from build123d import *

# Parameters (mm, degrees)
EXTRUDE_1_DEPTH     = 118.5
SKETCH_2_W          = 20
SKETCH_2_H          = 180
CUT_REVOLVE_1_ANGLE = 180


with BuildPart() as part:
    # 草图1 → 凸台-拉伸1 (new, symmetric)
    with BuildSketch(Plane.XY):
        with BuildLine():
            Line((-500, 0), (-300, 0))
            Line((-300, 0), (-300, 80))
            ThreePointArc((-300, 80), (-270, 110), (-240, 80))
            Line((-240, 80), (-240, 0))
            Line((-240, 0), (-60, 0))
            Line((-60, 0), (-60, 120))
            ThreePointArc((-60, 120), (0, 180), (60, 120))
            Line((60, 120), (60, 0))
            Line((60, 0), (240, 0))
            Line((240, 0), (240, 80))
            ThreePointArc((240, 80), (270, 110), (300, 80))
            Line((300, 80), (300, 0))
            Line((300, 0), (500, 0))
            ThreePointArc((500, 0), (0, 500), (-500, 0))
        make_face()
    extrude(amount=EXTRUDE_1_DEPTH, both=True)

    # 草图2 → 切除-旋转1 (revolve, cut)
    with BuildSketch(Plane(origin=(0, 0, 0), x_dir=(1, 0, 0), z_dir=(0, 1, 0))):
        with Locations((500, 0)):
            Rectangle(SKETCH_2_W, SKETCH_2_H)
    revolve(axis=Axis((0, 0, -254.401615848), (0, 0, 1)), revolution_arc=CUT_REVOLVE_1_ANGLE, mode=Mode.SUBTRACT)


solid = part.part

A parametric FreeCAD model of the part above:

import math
import FreeCAD as App
import Part
import Sketcher
from FreeCAD import Vector
Q = App.Units.Quantity

doc = App.newDocument("Part")
params = doc.addObject("Spreadsheet::Sheet", "Params")
for row, (alias, value) in enumerate([
    ("sketch1_radius", "30 mm"),
    ("sketch1_radius2", "60 mm"),
    ("sketch1_radius3", "500 mm"),
    ("sketch1_width", "200 mm"),
    ("sketch1_height", "80 mm"),
    ("pad1_length", "237 mm"),
    ("sketch2_width", "20 mm"),
    ("sketch2_height", "180 mm"),
    ("groove_angle", "180 deg"),
], start=1):
    params.set(f"A{row}", alias)
    params.set(f"B{row}", "=" + value)
    params.setAlias(f"B{row}", alias)

body = doc.addObject("PartDesign::Body", "Body")

# Sketch on XY plane
sketch1 = body.newObject("Sketcher::SketchObject", "Sketch")
sketch1.AttachmentSupport = (doc.getObject("XY_Plane"), [""])
sketch1.MapMode = "FlatFace"
sketch1.addGeometry([
    Part.LineSegment(Vector(-500, 0, 0), Vector(-300, 0, 0)),  # 0
    Part.LineSegment(Vector(-300, 0, 0), Vector(-300, 80, 0)),  # 1
    Part.ArcOfCircle(Part.Circle(Vector(-270, 80, 0), Vector(0, 0, 1), 30), math.radians(0), math.radians(180)),  # 2
    Part.LineSegment(Vector(-240, 80, 0), Vector(-240, 0, 0)),  # 3
    Part.LineSegment(Vector(-240, 0, 0), Vector(-60, 0, 0)),  # 4
    Part.LineSegment(Vector(-60, 0, 0), Vector(-60, 120, 0)),  # 5
    Part.ArcOfCircle(Part.Circle(Vector(0, 120, 0), Vector(0, 0, 1), 60), math.radians(0), math.radians(180)),  # 6
    Part.LineSegment(Vector(60, 120, 0), Vector(60, 0, 0)),  # 7
    Part.LineSegment(Vector(60, 0, 0), Vector(240, 0, 0)),  # 8
    Part.LineSegment(Vector(240, 0, 0), Vector(240, 80, 0)),  # 9
    Part.ArcOfCircle(Part.Circle(Vector(270, 80, 0), Vector(0, 0, 1), 30), math.radians(0), math.radians(180)),  # 10
    Part.LineSegment(Vector(300, 80, 0), Vector(300, 0, 0)),  # 11
    Part.LineSegment(Vector(300, 0, 0), Vector(500, 0, 0)),  # 12
    Part.ArcOfCircle(Part.Circle(Vector(0, 0, 0), Vector(0, 0, 1), 500), math.radians(0), math.radians(180)),  # 13
], False)
sketch1.addConstraint([
    Sketcher.Constraint("Coincident", 0, 2, 1, 1),
    Sketcher.Constraint("Tangent", 1, 2, 2, 2),
    Sketcher.Constraint("Tangent", 2, 1, 3, 1),
    Sketcher.Constraint("Coincident", 3, 2, 4, 1),
    Sketcher.Constraint("Coincident", 4, 2, 5, 1),
    Sketcher.Constraint("Tangent", 5, 2, 6, 2),
    Sketcher.Constraint("Tangent", 6, 1, 7, 1),
    Sketcher.Constraint("Coincident", 7, 2, 8, 1),
    Sketcher.Constraint("Coincident", 8, 2, 9, 1),
    Sketcher.Constraint("Tangent", 9, 2, 10, 2),
    Sketcher.Constraint("Tangent", 10, 1, 11, 1),
    Sketcher.Constraint("Coincident", 11, 2, 12, 1),
    Sketcher.Constraint("Coincident", 12, 2, 13, 1),
    Sketcher.Constraint("Coincident", 13, 2, 0, 1),
    Sketcher.Constraint("Horizontal", 0),
    Sketcher.Constraint("Vertical", 1),
    Sketcher.Constraint("Vertical", 3),
    Sketcher.Constraint("Horizontal", 4),
    Sketcher.Constraint("Vertical", 5),
    Sketcher.Constraint("Vertical", 7),
    Sketcher.Constraint("Horizontal", 8),
    Sketcher.Constraint("Vertical", 9),
    Sketcher.Constraint("Vertical", 11),
    Sketcher.Constraint("Horizontal", 12),
    Sketcher.Constraint("Coincident", 13, 3, -1, 1),
    Sketcher.Constraint("Equal", 2, 10),
    Sketcher.Constraint("Symmetric", 4, 2, 7, 2, -1, 1),
    Sketcher.Constraint("Symmetric", 0, 2, 11, 2, -1, 1),
    Sketcher.Constraint("PointOnObject", 0, 2, -1),
    Sketcher.Constraint("PointOnObject", 3, 2, -1),
    Sketcher.Constraint("Horizontal", 2, 3, 10, 3),
    Sketcher.Constraint("Radius", 2, Q("30 mm")),
    Sketcher.Constraint("Radius", 6, Q("60 mm")),
    Sketcher.Constraint("Radius", 13, Q("500 mm")),
    Sketcher.Constraint("DistanceX", 0, 1, 0, 2, Q("200 mm")),
    Sketcher.Constraint("DistanceY", 1, 1, 1, 2, Q("80 mm")),
    Sketcher.Constraint("DistanceY", 5, 1, 5, 2, Q("120 mm")),
])
sketch1.setExpression("Constraints[31]", "Params.sketch1_radius")
sketch1.setExpression("Constraints[32]", "Params.sketch1_radius2")
sketch1.setExpression("Constraints[33]", "Params.sketch1_radius3")
sketch1.setExpression("Constraints[34]", "Params.sketch1_width")
sketch1.setExpression("Constraints[35]", "Params.sketch1_height")
pad1 = body.newObject("PartDesign::Pad", "Pad")
pad1.Profile = sketch1
pad1.setExpression("Length", "Params.pad1_length")
pad1.Midplane = True

# Sketch on XZ plane
sketch2 = body.newObject("Sketcher::SketchObject", "Sketch001")
sketch2.AttachmentSupport = (doc.getObject("XZ_Plane"), [""])
sketch2.MapMode = "FlatFace"
sketch2.addGeometry([
    Part.LineSegment(Vector(490, -90, 0), Vector(490, 90, 0)),
    Part.LineSegment(Vector(490, 90, 0), Vector(510, 90, 0)),
    Part.LineSegment(Vector(510, 90, 0), Vector(510, -90, 0)),
    Part.LineSegment(Vector(510, -90, 0), Vector(490, -90, 0)),
], False)
sketch2.addConstraint([
    Sketcher.Constraint("Coincident", 0, 2, 1, 1),
    Sketcher.Constraint("Coincident", 1, 2, 2, 1),
    Sketcher.Constraint("Coincident", 2, 2, 3, 1),
    Sketcher.Constraint("Coincident", 3, 2, 0, 1),
    Sketcher.Constraint("Vertical", 0),
    Sketcher.Constraint("Horizontal", 1),
    Sketcher.Constraint("Vertical", 2),
    Sketcher.Constraint("Horizontal", 3),
    Sketcher.Constraint("DistanceX", 1, 1, 1, 2, Q("20 mm")),
    Sketcher.Constraint("DistanceY", 0, 1, 0, 2, Q("180 mm")),
    Sketcher.Constraint("DistanceX", -1, 1, 0, 2, Q("490 mm")),
    Sketcher.Constraint("DistanceY", -1, 1, 0, 2, Q("90 mm")),
])
sketch2.setExpression("Constraints[8]", "Params.sketch2_width")
sketch2.setExpression("Constraints[9]", "Params.sketch2_height")
groove = body.newObject("PartDesign::Groove", "Groove")
groove.Profile = sketch2
groove.ReferenceAxis = (sketch2, ["V_Axis"])
groove.setExpression("Angle", "Params.groove_angle")

doc.recompute()
